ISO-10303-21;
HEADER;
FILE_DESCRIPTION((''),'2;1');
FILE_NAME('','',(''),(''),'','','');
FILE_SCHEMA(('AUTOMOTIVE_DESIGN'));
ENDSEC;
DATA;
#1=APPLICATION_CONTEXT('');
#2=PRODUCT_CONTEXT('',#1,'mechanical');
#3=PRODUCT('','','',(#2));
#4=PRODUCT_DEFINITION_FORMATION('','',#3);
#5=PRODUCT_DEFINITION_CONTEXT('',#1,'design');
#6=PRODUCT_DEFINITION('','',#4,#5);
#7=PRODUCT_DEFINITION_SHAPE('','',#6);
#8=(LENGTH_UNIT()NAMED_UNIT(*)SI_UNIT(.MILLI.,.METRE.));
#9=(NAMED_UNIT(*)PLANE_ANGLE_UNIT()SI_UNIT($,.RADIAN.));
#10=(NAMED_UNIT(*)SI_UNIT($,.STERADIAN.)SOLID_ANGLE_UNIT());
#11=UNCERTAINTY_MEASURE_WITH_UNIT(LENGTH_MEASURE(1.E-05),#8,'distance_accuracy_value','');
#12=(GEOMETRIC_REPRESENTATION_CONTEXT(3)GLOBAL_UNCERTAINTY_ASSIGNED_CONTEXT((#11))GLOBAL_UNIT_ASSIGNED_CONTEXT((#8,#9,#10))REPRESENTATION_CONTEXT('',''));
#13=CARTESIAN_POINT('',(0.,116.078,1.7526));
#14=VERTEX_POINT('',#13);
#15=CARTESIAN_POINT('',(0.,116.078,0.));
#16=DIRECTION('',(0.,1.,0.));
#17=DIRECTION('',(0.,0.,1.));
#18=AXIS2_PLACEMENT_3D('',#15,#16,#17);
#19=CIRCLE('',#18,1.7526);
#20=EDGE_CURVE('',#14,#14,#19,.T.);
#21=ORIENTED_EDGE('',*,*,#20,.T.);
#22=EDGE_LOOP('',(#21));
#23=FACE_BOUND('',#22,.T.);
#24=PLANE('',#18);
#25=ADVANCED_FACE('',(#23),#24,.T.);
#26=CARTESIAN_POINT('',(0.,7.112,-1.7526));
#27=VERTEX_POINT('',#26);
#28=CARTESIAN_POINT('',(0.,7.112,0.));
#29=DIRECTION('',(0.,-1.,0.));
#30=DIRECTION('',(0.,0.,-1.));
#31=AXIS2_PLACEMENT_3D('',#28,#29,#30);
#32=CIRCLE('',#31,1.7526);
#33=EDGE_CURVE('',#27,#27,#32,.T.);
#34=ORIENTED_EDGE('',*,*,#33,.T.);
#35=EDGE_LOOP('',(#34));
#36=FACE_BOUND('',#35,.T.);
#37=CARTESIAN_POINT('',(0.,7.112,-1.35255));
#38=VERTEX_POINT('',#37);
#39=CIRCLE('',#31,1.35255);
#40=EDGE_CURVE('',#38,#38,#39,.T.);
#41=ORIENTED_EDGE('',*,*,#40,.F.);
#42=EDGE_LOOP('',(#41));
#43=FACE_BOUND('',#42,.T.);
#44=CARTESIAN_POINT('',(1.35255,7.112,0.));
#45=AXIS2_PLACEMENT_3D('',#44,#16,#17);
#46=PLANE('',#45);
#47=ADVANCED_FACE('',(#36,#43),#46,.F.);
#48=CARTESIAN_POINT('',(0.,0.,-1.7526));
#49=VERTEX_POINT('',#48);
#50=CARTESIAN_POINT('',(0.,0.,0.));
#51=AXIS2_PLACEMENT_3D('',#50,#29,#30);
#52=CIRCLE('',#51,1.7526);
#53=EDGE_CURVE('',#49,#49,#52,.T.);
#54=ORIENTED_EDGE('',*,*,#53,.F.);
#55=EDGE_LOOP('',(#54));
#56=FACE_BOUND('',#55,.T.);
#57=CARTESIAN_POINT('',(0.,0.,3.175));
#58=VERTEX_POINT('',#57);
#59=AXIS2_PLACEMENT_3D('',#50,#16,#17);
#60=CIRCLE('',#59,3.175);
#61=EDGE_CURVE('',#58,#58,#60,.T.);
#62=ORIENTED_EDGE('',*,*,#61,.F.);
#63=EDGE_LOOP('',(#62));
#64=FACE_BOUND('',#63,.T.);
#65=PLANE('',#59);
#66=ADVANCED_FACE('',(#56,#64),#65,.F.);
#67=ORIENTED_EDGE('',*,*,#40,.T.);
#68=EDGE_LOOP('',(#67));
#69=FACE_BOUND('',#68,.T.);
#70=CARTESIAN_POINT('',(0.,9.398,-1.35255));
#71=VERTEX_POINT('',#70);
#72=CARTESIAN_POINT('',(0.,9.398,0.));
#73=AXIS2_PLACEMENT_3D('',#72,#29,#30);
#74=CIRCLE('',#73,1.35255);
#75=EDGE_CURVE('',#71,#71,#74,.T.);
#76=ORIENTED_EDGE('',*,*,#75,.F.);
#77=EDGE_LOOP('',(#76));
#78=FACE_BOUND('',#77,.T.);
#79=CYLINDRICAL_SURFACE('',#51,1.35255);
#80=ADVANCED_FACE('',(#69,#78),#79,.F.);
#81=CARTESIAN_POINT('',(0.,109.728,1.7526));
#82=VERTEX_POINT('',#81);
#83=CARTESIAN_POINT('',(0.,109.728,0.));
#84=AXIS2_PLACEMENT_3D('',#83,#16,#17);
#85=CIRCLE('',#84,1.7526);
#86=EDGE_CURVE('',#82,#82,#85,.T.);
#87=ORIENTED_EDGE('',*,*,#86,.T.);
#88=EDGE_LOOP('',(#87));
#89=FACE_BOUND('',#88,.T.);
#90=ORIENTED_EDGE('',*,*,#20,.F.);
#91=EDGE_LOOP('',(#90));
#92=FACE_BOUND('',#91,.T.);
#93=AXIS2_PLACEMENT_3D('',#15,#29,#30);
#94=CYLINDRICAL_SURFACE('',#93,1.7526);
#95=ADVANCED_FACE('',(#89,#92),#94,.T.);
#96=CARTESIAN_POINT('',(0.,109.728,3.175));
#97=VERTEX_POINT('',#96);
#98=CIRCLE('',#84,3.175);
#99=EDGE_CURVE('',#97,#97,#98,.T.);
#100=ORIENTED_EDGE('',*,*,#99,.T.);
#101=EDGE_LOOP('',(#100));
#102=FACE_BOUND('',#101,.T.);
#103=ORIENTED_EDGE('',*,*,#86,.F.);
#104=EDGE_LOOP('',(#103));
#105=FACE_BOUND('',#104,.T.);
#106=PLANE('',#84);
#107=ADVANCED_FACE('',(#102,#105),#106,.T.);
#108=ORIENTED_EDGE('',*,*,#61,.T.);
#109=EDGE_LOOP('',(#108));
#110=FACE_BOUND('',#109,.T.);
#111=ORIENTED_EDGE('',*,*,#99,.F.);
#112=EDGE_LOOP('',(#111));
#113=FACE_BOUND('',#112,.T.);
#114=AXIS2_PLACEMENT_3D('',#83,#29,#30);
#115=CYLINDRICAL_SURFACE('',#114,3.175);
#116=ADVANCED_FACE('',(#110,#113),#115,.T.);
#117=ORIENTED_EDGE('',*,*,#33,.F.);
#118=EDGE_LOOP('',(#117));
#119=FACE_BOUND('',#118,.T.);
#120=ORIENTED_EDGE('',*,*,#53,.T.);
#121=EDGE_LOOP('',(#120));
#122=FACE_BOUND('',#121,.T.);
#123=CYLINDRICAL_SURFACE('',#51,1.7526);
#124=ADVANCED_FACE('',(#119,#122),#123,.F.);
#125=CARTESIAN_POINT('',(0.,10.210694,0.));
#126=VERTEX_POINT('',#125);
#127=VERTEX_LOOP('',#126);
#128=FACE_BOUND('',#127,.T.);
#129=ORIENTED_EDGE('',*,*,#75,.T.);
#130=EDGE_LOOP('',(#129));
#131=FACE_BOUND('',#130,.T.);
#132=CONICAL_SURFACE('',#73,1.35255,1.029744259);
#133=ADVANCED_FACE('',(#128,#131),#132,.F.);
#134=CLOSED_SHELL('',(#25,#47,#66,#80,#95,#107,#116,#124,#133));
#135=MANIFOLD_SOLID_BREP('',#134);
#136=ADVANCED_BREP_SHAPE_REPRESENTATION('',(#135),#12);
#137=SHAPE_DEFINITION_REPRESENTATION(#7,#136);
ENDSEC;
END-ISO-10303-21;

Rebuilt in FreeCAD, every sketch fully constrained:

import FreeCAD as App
import Part
import Sketcher

V = App.Vector
Q = App.Units.Quantity

doc = App.newDocument("Part")
body = doc.addObject("PartDesign::Body", "Body")

# Sketch on XZ plane
sketch1 = doc.addObject("Sketcher::SketchObject", "Sketch")
body.addObject(sketch1)
sketch1.AttachmentSupport = (doc.XZ_Plane, [""])
sketch1.MapMode = "FlatFace"
sketch1.addGeometry(Part.Circle(V(0, 0, 0), V(0, 0, 1), 3.2), False)
sketch1.addConstraint(Sketcher.Constraint("Coincident", 0, 3, -1, 1))
sketch1.addConstraint(Sketcher.Constraint("Diameter", 0, Q("0.25 in")))
pad1 = doc.addObject("PartDesign::Pad", "Pad")
body.addObject(pad1)
pad1.Profile = sketch1
pad1.Length = Q("4.32 in")
pad1.Reversed = True

# Sketch on XZ plane
sketch2 = doc.addObject("Sketcher::SketchObject", "Sketch001")
body.addObject(sketch2)
sketch2.AttachmentSupport = (doc.XZ_Plane, [""])
sketch2.MapMode = "FlatFace"
sketch2.addGeometry(Part.Circle(V(0, 0, 0), V(0, 0, 1), 1.4), False)
sketch2.addConstraint(Sketcher.Constraint("Coincident", 0, 3, -1, 1))
sketch2.addConstraint(Sketcher.Constraint("Diameter", 0, Q("0.1065 in")))
doc.recompute()
hole = doc.addObject("PartDesign::Hole", "Hole")
body.addObject(hole)
hole.Profile = sketch2
hole.ThreadType = "None"
hole.Diameter = Q("0.1065 in")
hole.DepthType = "Dimension"
hole.Depth = Q("0.37 in")
hole.DrillPoint = "Angled"
hole.DrillPointAngle = 118
hole.HoleCutType = "Counterbore"
hole.HoleCutDiameter = Q("0.138 in")
hole.HoleCutDepth = Q("0.28 in")

# Sketch on XZ plane
sketch3 = doc.addObject("Sketcher::SketchObject", "Sketch002")
body.addObject(sketch3)
sketch3.AttachmentSupport = (doc.XZ_Plane, [""])
sketch3.MapMode = "FlatFace"
sketch3.AttachmentOffset = App.Placement(V(0, 0, -4.32 * 25.4), App.Rotation())
sketch3.addGeometry(Part.Circle(V(0, 0, 0), V(0, 0, 1), 1.8), False)
sketch3.addConstraint(Sketcher.Constraint("Coincident", 0, 3, -1, 1))
sketch3.addConstraint(Sketcher.Constraint("Diameter", 0, Q("0.138 in")))
pad2 = doc.addObject("PartDesign::Pad", "Pad001")
body.addObject(pad2)
pad2.Profile = sketch3
pad2.Length = Q("0.25 in")
pad2.Reversed = True

doc.recompute()
